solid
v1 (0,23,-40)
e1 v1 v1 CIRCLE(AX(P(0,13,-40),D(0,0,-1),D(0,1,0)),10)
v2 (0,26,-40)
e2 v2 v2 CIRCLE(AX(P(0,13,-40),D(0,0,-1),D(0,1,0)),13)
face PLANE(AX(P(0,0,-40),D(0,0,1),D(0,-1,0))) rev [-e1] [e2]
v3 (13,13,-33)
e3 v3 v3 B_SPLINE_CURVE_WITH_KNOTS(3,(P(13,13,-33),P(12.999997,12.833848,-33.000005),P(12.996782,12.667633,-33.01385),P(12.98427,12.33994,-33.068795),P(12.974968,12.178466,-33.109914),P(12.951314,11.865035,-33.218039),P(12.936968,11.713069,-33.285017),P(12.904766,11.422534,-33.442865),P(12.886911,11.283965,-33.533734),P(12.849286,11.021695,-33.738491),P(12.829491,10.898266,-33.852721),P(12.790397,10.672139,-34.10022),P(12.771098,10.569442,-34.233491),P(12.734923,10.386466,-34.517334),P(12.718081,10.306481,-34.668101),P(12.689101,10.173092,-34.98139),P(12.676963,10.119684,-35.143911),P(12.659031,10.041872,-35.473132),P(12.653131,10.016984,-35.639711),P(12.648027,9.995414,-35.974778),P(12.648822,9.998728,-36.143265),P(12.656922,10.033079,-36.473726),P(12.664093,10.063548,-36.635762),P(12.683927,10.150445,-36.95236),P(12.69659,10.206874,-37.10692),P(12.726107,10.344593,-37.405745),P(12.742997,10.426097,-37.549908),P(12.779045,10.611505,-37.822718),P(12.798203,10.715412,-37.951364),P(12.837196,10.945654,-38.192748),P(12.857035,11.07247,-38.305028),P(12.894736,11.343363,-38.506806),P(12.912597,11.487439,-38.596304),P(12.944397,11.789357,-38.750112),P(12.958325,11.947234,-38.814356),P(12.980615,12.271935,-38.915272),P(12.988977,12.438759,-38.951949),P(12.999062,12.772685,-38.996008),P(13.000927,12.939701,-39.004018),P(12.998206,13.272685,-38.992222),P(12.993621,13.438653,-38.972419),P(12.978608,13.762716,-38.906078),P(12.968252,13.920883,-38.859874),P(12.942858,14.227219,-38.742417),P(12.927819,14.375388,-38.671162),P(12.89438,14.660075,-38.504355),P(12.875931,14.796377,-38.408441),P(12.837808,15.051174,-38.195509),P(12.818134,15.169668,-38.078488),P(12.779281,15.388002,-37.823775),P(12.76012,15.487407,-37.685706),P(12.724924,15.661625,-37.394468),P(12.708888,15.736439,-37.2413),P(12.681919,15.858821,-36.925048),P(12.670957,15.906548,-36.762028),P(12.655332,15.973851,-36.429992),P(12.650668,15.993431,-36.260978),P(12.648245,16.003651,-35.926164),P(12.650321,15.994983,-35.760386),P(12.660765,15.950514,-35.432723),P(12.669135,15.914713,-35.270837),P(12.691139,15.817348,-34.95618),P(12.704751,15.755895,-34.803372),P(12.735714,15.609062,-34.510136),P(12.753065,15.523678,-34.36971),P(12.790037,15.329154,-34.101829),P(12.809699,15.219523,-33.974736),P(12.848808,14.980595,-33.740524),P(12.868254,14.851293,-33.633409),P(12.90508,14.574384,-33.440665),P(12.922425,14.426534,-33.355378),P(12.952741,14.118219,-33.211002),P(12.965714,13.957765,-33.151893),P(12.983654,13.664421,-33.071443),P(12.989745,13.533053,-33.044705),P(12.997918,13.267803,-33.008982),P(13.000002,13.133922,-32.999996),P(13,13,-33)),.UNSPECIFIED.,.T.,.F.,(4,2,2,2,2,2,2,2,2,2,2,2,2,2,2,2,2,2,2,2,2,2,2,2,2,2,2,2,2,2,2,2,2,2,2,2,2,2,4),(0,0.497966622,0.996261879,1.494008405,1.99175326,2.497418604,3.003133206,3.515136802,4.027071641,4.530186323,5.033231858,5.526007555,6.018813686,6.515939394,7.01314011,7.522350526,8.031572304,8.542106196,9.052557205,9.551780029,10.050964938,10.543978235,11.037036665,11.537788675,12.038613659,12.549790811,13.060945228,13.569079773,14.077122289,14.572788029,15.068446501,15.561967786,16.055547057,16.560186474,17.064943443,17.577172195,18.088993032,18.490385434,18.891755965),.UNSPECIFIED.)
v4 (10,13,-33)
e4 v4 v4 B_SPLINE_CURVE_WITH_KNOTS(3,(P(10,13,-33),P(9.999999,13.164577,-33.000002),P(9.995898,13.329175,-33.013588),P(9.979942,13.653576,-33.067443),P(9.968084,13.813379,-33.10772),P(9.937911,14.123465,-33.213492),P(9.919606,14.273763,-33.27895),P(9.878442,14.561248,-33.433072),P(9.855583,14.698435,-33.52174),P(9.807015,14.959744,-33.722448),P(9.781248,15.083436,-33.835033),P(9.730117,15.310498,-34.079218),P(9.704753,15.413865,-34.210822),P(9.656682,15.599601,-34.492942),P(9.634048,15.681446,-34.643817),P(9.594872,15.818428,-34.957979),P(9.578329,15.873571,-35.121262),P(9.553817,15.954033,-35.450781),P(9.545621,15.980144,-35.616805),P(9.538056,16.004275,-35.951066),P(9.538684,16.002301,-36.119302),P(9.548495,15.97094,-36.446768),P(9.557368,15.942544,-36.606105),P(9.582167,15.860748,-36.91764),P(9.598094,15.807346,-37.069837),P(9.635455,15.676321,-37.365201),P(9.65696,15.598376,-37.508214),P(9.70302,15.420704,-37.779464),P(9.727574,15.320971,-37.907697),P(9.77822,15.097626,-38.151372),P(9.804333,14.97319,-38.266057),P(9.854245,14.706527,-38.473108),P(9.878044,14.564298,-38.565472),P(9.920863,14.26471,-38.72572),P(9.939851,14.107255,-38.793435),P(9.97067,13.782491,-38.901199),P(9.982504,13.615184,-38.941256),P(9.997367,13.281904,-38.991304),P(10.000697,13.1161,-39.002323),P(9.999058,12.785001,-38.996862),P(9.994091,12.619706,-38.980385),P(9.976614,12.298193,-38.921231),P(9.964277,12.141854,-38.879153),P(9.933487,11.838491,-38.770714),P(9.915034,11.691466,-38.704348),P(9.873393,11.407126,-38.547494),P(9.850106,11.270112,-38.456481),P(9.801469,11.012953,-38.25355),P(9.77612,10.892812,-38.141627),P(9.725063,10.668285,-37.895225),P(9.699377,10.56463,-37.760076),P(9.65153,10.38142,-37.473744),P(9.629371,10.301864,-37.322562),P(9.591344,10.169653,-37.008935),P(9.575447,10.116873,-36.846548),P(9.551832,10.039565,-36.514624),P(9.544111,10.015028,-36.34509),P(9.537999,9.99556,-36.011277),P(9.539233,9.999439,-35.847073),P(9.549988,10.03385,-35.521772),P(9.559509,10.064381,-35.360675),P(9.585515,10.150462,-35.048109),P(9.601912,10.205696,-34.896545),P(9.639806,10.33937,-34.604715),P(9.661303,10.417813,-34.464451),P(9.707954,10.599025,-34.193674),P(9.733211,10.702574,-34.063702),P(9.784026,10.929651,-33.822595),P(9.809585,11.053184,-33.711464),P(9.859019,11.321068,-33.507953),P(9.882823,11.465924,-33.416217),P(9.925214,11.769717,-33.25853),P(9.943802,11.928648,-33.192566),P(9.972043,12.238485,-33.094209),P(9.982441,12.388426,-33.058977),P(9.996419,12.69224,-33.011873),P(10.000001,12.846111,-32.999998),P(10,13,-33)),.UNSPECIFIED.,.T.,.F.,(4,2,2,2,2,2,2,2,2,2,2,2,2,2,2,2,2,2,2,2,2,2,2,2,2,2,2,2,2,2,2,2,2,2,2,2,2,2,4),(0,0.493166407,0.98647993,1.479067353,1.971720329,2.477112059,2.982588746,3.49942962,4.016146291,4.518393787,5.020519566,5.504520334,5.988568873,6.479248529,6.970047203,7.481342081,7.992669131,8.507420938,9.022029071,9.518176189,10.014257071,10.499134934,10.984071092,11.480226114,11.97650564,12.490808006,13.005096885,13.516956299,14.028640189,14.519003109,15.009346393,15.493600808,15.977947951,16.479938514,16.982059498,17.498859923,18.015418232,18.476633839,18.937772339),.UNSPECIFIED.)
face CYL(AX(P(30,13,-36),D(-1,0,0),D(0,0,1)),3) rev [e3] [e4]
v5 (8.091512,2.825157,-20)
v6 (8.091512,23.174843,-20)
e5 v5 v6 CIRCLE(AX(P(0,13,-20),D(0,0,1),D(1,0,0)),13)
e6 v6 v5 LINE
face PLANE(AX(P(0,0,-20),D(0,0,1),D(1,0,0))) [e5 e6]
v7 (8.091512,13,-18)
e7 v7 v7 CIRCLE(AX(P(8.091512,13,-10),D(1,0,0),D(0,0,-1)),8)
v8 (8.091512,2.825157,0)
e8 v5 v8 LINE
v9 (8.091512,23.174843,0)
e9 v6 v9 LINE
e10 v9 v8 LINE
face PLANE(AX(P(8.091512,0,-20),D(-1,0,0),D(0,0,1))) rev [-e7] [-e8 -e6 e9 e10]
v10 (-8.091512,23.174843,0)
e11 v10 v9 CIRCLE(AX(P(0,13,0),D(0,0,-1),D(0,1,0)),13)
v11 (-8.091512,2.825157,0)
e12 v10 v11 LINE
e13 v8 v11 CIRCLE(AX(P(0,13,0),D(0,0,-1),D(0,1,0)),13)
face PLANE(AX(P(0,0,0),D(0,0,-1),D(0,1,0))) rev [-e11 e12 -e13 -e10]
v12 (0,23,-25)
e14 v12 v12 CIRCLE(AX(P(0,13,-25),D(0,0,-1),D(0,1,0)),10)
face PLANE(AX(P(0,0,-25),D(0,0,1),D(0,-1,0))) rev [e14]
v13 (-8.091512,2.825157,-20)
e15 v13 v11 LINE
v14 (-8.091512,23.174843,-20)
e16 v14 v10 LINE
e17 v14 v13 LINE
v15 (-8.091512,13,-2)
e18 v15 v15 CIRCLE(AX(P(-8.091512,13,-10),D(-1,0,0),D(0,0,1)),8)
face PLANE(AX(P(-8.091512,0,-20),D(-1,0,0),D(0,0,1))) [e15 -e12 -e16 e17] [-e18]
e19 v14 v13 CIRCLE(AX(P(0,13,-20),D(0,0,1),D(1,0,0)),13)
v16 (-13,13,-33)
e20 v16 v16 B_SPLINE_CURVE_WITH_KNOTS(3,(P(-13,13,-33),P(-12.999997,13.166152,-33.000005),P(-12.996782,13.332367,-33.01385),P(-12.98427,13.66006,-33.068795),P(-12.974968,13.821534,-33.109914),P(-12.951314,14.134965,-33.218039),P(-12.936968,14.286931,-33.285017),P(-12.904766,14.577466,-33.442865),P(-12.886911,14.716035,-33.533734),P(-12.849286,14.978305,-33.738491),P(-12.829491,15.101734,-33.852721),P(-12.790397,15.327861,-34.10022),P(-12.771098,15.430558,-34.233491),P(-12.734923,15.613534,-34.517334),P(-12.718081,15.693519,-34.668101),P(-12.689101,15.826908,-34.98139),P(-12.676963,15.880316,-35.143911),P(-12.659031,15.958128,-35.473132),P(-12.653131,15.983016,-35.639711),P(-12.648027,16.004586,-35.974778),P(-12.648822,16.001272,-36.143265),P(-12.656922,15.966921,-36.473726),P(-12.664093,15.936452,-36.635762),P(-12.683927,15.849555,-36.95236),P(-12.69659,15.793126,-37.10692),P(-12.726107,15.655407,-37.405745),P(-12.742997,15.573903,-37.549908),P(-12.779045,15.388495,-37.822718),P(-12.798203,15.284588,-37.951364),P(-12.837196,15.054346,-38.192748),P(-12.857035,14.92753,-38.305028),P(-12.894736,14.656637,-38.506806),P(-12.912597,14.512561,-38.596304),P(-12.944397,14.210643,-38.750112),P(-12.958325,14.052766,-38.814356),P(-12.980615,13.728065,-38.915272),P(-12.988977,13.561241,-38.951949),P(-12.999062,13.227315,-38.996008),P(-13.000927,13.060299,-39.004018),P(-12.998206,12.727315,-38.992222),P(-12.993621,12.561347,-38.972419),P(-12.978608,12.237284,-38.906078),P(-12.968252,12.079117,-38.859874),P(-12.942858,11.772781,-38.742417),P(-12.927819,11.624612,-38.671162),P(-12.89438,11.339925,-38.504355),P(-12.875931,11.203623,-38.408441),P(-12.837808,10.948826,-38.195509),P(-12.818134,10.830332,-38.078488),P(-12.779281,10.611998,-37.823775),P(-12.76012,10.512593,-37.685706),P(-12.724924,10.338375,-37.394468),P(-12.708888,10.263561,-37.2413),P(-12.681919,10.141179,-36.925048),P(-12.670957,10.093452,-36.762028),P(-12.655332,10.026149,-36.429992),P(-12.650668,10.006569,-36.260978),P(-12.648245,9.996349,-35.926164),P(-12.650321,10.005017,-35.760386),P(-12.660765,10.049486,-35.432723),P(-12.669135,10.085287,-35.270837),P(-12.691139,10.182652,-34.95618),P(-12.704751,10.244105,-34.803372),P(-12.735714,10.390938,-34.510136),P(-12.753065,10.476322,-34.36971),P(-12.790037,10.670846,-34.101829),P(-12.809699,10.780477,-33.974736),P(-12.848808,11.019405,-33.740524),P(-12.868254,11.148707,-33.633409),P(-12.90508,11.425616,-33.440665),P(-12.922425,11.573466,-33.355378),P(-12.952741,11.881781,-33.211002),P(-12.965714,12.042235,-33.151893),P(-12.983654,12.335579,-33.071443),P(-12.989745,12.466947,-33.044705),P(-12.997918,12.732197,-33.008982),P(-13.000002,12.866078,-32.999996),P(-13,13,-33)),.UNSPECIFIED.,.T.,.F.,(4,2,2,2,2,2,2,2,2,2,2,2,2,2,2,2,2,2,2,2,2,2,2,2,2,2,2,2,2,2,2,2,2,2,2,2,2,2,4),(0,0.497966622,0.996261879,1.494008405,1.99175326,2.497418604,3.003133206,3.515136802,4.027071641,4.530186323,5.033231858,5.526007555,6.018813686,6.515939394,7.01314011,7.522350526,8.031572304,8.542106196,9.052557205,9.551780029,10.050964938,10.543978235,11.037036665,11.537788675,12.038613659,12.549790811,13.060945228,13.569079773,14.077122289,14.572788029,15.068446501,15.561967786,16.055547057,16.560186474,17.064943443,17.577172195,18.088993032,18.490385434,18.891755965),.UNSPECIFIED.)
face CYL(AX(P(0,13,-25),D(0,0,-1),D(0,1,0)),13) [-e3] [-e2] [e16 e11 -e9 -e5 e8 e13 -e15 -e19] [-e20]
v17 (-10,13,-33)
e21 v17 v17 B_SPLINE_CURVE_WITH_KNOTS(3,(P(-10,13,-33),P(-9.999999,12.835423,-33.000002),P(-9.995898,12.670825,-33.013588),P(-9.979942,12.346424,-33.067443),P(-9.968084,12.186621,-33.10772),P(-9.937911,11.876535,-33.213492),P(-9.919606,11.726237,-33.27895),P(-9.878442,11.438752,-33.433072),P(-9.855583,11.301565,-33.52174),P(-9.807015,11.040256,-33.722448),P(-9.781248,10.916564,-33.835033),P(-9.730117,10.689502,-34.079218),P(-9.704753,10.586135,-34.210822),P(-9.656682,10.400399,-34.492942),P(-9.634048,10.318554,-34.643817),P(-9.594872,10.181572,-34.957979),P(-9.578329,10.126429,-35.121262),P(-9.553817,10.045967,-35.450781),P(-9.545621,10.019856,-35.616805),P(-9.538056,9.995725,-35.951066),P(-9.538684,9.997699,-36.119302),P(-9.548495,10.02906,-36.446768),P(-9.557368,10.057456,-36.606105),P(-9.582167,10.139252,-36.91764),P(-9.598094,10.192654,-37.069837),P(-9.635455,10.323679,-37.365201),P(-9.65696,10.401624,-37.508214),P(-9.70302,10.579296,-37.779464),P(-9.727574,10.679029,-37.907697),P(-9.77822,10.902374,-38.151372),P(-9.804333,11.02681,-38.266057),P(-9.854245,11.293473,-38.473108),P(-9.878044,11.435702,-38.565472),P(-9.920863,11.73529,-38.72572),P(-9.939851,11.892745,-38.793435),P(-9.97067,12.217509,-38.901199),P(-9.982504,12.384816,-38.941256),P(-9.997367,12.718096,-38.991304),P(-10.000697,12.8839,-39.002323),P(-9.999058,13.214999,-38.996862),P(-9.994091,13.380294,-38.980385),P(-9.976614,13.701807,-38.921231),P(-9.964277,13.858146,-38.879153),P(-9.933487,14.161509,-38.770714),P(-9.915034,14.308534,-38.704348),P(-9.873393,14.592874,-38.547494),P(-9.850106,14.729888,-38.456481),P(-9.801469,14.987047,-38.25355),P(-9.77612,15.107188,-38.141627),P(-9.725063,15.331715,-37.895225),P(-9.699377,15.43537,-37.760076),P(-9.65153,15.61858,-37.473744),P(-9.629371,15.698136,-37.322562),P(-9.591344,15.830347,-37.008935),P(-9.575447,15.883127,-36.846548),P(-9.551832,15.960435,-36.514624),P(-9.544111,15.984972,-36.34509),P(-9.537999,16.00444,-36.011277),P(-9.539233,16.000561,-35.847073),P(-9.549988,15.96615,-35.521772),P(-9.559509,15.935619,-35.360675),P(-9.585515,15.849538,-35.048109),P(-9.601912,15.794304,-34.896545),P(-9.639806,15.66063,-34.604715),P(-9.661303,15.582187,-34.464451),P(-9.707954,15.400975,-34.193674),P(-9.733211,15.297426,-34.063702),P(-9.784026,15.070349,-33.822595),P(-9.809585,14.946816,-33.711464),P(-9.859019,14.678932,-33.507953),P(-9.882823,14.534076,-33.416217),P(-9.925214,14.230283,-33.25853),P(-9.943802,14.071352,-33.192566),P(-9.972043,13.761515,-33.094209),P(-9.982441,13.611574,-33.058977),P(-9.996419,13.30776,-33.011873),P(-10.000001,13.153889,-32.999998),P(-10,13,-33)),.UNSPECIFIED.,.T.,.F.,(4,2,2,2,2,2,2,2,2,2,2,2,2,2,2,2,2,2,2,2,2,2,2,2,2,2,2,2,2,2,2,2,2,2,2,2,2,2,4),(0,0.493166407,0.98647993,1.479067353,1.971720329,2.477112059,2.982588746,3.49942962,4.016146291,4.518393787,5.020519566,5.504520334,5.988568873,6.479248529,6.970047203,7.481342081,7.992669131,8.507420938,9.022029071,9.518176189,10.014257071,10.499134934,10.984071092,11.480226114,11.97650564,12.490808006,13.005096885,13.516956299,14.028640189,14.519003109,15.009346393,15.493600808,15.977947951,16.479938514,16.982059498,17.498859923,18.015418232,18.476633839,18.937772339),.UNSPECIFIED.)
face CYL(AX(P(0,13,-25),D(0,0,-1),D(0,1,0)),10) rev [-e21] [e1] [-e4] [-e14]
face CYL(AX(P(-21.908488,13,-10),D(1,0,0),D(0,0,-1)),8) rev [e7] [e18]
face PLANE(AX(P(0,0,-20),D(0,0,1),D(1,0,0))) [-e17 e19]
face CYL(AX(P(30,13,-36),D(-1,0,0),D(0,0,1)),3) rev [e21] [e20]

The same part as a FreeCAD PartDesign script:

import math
import FreeCAD as App
import Part
import Sketcher

V = App.Vector


def add_polygon(sketch, points):
    """Adds a closed chain of lines whose ends are joined by coincident constraints."""
    first, n = sketch.GeometryCount, len(points)
    for a, b in zip(points, points[1:] + points[:1]):
        sketch.addGeometry(Part.LineSegment(App.Vector(*a, 0), App.Vector(*b, 0)), False)
    for i in range(n):
        sketch.addConstraint(Sketcher.Constraint("Coincident", first + i, 2, first + (i + 1) % n, 1))

doc = App.newDocument("Part")
params = doc.addObject("Spreadsheet::Sheet", "Params")
for row, (alias, value) in enumerate([
    ("sketch1_width", "13 mm"),
    ("sketch1_width2", "3 mm"),
    ("sketch1_height", "40 mm"),
    ("sketch1_height2", "15 mm"),
    ("revolution_angle", "360 deg"),
    ("sketch2_radius", "13 mm"),
    ("pocket1_length", "20 mm"),
    ("sketch3_diameter", "16 mm"),
    ("pocket2_length", "30 mm"),
    ("sketch4_diameter", "6 mm"),
], start=1):
    params.set(f"A{row}", alias)
    params.set(f"B{row}", "=" + value)
    params.setAlias(f"B{row}", alias)

body = doc.addObject("PartDesign::Body", "Body")

# Sketch on YZ plane
sketch1 = body.newObject("Sketcher::SketchObject", "Sketch")
sketch1.AttachmentSupport = (doc.getObject("YZ_Plane"), [""])
sketch1.MapMode = "FlatFace"
add_polygon(sketch1, [(13, 0), (0, 0), (0, -40), (3, -40), (3, -25), (13, -25)])  # lines 0-5
sketch1.addGeometry(Part.LineSegment(V(13, -40, 0), V(13, 0, 0)), True)  # axis
sketch1.addConstraint([
    Sketcher.Constraint("Horizontal", 0),
    Sketcher.Constraint("Vertical", 1),
    Sketcher.Constraint("Horizontal", 2),
    Sketcher.Constraint("Vertical", 3),
    Sketcher.Constraint("Horizontal", 4),
    Sketcher.Constraint("Vertical", 5),
    Sketcher.Constraint("Vertical", 6),
    Sketcher.Constraint("Coincident", 0, 2, -1, 1),
    Sketcher.Constraint("Coincident", 6, 2, 5, 2),
    Sketcher.Constraint("Horizontal", 2, 2, 6, 1),
    Sketcher.Constraint("DistanceX", 0, 2, 0, 1, 13.0),
    Sketcher.Constraint("DistanceX", 2, 1, 2, 2, 3.0),
    Sketcher.Constraint("DistanceY", 1, 2, 1, 1, 40.0),
    Sketcher.Constraint("DistanceY", 3, 1, 3, 2, 15.0),
])
sketch1.setExpression("Constraints[16]", "Params.sketch1_width")
sketch1.setExpression("Constraints[17]", "Params.sketch1_width2")
sketch1.setExpression("Constraints[18]", "Params.sketch1_height")
sketch1.setExpression("Constraints[19]", "Params.sketch1_height2")
revolution = body.newObject("PartDesign::Revolution", "Revolution")
revolution.Profile = sketch1
revolution.ReferenceAxis = (sketch1, ["Axis0"])
revolution.setExpression("Angle", "Params.revolution_angle")

# Sketch on XY plane
sketch2 = body.newObject("Sketcher::SketchObject", "Sketch001")
sketch2.AttachmentSupport = (doc.getObject("XY_Plane"), [""])
sketch2.MapMode = "FlatFace"
sketch2.addGeometry([
    Part.ArcOfCircle(Part.Circle(V(0, 13, 0), V(0, 0, 1), 13), math.radians(0), math.radians(52)),  # 0
    Part.LineSegment(V(8, 23, 0), V(8, 3, 0)),  # 1
    Part.ArcOfCircle(Part.Circle(V(0, 13, 0), V(0, 0, 1), 13), math.radians(-52), math.radians(0)),  # 2
    Part.LineSegment(V(-8, 3, 0), V(-8, 23, 0)),  # 3
    Part.ArcOfCircle(Part.Circle(V(0, 13, 0), V(0, 0, 1), 13), math.radians(128), math.radians(232)),  # 4
], False)
sketch2.addConstraint([
    Sketcher.Constraint("Coincident", 0, 2, 1, 1),
    Sketcher.Constraint("Coincident", 1, 2, 2, 1),
    Sketcher.Constraint("Tangent", 2, 2, 0, 1),
    Sketcher.Constraint("Coincident", 3, 1, 4, 2),
    Sketcher.Constraint("Coincident", 4, 1, 3, 2),
    Sketcher.Constraint("Vertical", 1),
    Sketcher.Constraint("Vertical", 3),
    Sketcher.Constraint("Coincident", 4, 3, 0, 3),
    Sketcher.Constraint("Equal", 0, 2),
    Sketcher.Constraint("Equal", 2, 4),
    Sketcher.Constraint("Symmetric", 1, 2, 3, 1, -2),
    Sketcher.Constraint("Horizontal", 4, 3, 2, 2),
    Sketcher.Constraint("Radius", 0, 13.0),
    Sketcher.Constraint("DistanceY", -1, 1, 0, 3, 13.0),
    Sketcher.Constraint("DistanceY", 1, 2, 1, 1, 20.349687),
])
sketch2.setExpression("Constraints[12]", "Params.sketch2_radius")
pocket1 = body.newObject("PartDesign::Pocket", "Pocket")
pocket1.Profile = sketch2
pocket1.setExpression("Length", "Params.pocket1_length")

# Sketch on YZ plane
sketch3 = body.newObject("Sketcher::SketchObject", "Sketch002")
sketch3.AttachmentSupport = (doc.getObject("YZ_Plane"), [""])
sketch3.MapMode = "FlatFace"
sketch3.AttachmentOffset = App.Placement(V(0, 0, 8.091512), App.Rotation())
sketch3.addGeometry(Part.Circle(V(13, -10, 0), V(0, 0, 1), 8), False)
sketch3.addConstraint([
    Sketcher.Constraint("Diameter", 0, 16.0),
    Sketcher.Constraint("DistanceX", -1, 1, 0, 3, 13.0),
    Sketcher.Constraint("DistanceY", 0, 3, -1, 1, 10.0),
])
sketch3.setExpression("Constraints[0]", "Params.sketch3_diameter")
pocket2 = body.newObject("PartDesign::Pocket", "Pocket001")
pocket2.Profile = sketch3
pocket2.setExpression("Length", "Params.pocket2_length")

# Sketch on YZ plane
sketch4 = body.newObject("Sketcher::SketchObject", "Sketch003")
sketch4.AttachmentSupport = (doc.getObject("YZ_Plane"), [""])
sketch4.MapMode = "FlatFace"
sketch4.addGeometry(Part.Circle(V(13, -36, 0), V(0, 0, 1), 3), False)
sketch4.addConstraint([
    Sketcher.Constraint("Diameter", 0, 6.0),
    Sketcher.Constraint("DistanceX", -1, 1, 0, 3, 13.0),
    Sketcher.Constraint("DistanceY", 0, 3, -1, 1, 36.0),
])
sketch4.setExpression("Constraints[0]", "Params.sketch4_diameter")
pocket3 = body.newObject("PartDesign::Pocket", "Pocket002")
pocket3.Profile = sketch4
pocket3.Type = "ThroughAll"
pocket3.Midplane = True

doc.recompute()
